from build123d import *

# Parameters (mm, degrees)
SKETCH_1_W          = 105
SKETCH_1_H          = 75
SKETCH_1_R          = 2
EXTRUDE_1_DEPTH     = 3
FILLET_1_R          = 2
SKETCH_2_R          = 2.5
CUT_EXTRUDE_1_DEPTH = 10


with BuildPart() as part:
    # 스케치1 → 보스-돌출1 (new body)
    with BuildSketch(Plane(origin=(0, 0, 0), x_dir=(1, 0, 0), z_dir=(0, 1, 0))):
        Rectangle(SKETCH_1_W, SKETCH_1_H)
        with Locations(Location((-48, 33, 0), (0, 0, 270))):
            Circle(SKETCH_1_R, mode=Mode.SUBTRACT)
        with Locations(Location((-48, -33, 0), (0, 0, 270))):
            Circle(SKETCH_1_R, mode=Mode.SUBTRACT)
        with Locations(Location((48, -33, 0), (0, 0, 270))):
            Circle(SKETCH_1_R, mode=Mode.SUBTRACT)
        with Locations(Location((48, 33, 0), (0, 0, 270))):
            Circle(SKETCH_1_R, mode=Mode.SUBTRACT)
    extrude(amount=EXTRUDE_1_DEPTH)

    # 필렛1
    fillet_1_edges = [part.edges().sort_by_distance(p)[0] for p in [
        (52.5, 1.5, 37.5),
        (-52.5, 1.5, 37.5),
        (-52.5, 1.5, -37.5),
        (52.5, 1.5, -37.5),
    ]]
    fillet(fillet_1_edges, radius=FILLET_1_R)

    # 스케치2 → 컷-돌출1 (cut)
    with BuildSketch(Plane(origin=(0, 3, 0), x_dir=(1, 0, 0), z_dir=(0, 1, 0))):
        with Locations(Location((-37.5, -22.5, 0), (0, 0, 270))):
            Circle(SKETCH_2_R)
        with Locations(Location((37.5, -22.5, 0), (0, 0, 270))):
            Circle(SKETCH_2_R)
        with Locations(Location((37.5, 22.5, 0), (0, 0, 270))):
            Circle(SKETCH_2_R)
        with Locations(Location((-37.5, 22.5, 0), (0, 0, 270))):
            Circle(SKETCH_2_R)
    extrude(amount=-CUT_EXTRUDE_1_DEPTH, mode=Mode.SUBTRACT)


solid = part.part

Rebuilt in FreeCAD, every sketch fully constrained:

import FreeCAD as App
import Part
import Sketcher

V = App.Vector


def edges_at(feature, points):
    """Names of the edges that pass closest to the given points."""
    edges = feature.Shape.Edges
    near = lambda p: min(range(len(edges)), key=lambda i: edges[i].distToShape(Part.Vertex(*p))[0])
    return sorted({f"Edge{near(p) + 1}" for p in points})


def add_polygon(sketch, points):
    """Adds a closed chain of lines whose ends are joined by coincident constraints."""
    first, n = sketch.GeometryCount, len(points)
    for a, b in zip(points, points[1:] + points[:1]):
        sketch.addGeometry(Part.LineSegment(App.Vector(*a, 0), App.Vector(*b, 0)), False)
    for i in range(n):
        sketch.addConstraint(Sketcher.Constraint("Coincident", first + i, 2, first + (i + 1) % n, 1))

doc = App.newDocument("Part")
body = doc.addObject("PartDesign::Body", "Body")

# Sketch on XZ plane
sketch1 = body.newObject("Sketcher::SketchObject", "Sketch")
sketch1.AttachmentSupport = (doc.getObject("XZ_Plane"), [""])
sketch1.MapMode = "FlatFace"
add_polygon(sketch1, [(-52.5, -37.5), (-52.5, 37.5), (52.5, 37.5), (52.5, -37.5)])  # lines 0-3
sketch1.addGeometry(Part.Circle(V(-48, 33, 0), V(0, 0, 1), 2), False)  # 4
sketch1.addGeometry(Part.Circle(V(48, 33, 0), V(0, 0, 1), 2), False)  # 5
sketch1.addGeometry(Part.Circle(V(-48, -33, 0), V(0, 0, 1), 2), False)  # 6
sketch1.addGeometry(Part.Circle(V(48, -33, 0), V(0, 0, 1), 2), False)  # 7
sketch1.addConstraint([
    Sketcher.Constraint("Vertical", 0),
    Sketcher.Constraint("Horizontal", 1),
    Sketcher.Constraint("Vertical", 2),
    Sketcher.Constraint("Horizontal", 3),
    Sketcher.Constraint("Equal", 4, 5),
    Sketcher.Constraint("Equal", 5, 6),
    Sketcher.Constraint("Equal", 6, 7),
    Sketcher.Constraint("Symmetric", 5, 3, 6, 3, -1, 1),
    Sketcher.Constraint("Symmetric", 4, 3, 7, 3, -1, 1),
    Sketcher.Constraint("Symmetric", 0, 2, 2, 2, -1, 1),
    Sketcher.Constraint("Symmetric", 4, 3, 5, 3, -2),
    Sketcher.Constraint("Diameter", 4, 4.0),
    Sketcher.Constraint("DistanceX", 1, 1, 1, 2, 105.0),
    Sketcher.Constraint("DistanceY", 0, 1, 0, 2, 75.0),
    Sketcher.Constraint("DistanceX", 4, 3, -1, 1, 48.0),
    Sketcher.Constraint("DistanceY", -1, 1, 4, 3, 33.0),
])
pad1 = body.newObject("PartDesign::Pad", "Pad")
pad1.Profile = sketch1
pad1.Length = 3
pad1.Reversed = True
doc.recompute()

fillet = body.newObject("PartDesign::Fillet", "Fillet")
fillet.Base = (pad1, edges_at(pad1, [
    (52.5, 1.5, 37.5),
    (-52.5, 1.5, 37.5),
    (-52.5, 1.5, -37.5),
    (52.5, 1.5, -37.5),
]))
fillet.Radius = 2

# Sketch on XZ plane
sketch2 = body.newObject("Sketcher::SketchObject", "Sketch001")
sketch2.AttachmentSupport = (doc.getObject("XZ_Plane"), [""])
sketch2.MapMode = "FlatFace"
sketch2.AttachmentOffset = App.Placement(V(0, 0, -3), App.Rotation())
sketch2.addGeometry([
    Part.Circle(V(-37.5, 22.5, 0), V(0, 0, 1), 2.5),
    Part.Circle(V(37.5, 22.5, 0), V(0, 0, 1), 2.5),
    Part.Circle(V(37.5, -22.5, 0), V(0, 0, 1), 2.5),
    Part.Circle(V(-37.5, -22.5, 0), V(0, 0, 1), 2.5),
], False)
sketch2.addConstraint([
    Sketcher.Constraint("Equal", 0, 1),
    Sketcher.Constraint("Equal", 1, 2),
    Sketcher.Constraint("Equal", 2, 3),
    Sketcher.Constraint("Symmetric", 0, 3, 2, 3, -1, 1),
    Sketcher.Constraint("Symmetric", 1, 3, 3, 3, -1, 1),
    Sketcher.Constraint("Symmetric", 0, 3, 1, 3, -2),
    Sketcher.Constraint("Diameter", 0, 5.0),
    Sketcher.Constraint("DistanceX", 0, 3, 1, 3, 75.0),
    Sketcher.Constraint("DistanceY", 2, 3, 1, 3, 45.0),
])
pocket1 = body.newObject("PartDesign::Pocket", "Pocket")
pocket1.Profile = sketch2
pocket1.Length = 10
pocket1.Reversed = True

doc.recompute()
